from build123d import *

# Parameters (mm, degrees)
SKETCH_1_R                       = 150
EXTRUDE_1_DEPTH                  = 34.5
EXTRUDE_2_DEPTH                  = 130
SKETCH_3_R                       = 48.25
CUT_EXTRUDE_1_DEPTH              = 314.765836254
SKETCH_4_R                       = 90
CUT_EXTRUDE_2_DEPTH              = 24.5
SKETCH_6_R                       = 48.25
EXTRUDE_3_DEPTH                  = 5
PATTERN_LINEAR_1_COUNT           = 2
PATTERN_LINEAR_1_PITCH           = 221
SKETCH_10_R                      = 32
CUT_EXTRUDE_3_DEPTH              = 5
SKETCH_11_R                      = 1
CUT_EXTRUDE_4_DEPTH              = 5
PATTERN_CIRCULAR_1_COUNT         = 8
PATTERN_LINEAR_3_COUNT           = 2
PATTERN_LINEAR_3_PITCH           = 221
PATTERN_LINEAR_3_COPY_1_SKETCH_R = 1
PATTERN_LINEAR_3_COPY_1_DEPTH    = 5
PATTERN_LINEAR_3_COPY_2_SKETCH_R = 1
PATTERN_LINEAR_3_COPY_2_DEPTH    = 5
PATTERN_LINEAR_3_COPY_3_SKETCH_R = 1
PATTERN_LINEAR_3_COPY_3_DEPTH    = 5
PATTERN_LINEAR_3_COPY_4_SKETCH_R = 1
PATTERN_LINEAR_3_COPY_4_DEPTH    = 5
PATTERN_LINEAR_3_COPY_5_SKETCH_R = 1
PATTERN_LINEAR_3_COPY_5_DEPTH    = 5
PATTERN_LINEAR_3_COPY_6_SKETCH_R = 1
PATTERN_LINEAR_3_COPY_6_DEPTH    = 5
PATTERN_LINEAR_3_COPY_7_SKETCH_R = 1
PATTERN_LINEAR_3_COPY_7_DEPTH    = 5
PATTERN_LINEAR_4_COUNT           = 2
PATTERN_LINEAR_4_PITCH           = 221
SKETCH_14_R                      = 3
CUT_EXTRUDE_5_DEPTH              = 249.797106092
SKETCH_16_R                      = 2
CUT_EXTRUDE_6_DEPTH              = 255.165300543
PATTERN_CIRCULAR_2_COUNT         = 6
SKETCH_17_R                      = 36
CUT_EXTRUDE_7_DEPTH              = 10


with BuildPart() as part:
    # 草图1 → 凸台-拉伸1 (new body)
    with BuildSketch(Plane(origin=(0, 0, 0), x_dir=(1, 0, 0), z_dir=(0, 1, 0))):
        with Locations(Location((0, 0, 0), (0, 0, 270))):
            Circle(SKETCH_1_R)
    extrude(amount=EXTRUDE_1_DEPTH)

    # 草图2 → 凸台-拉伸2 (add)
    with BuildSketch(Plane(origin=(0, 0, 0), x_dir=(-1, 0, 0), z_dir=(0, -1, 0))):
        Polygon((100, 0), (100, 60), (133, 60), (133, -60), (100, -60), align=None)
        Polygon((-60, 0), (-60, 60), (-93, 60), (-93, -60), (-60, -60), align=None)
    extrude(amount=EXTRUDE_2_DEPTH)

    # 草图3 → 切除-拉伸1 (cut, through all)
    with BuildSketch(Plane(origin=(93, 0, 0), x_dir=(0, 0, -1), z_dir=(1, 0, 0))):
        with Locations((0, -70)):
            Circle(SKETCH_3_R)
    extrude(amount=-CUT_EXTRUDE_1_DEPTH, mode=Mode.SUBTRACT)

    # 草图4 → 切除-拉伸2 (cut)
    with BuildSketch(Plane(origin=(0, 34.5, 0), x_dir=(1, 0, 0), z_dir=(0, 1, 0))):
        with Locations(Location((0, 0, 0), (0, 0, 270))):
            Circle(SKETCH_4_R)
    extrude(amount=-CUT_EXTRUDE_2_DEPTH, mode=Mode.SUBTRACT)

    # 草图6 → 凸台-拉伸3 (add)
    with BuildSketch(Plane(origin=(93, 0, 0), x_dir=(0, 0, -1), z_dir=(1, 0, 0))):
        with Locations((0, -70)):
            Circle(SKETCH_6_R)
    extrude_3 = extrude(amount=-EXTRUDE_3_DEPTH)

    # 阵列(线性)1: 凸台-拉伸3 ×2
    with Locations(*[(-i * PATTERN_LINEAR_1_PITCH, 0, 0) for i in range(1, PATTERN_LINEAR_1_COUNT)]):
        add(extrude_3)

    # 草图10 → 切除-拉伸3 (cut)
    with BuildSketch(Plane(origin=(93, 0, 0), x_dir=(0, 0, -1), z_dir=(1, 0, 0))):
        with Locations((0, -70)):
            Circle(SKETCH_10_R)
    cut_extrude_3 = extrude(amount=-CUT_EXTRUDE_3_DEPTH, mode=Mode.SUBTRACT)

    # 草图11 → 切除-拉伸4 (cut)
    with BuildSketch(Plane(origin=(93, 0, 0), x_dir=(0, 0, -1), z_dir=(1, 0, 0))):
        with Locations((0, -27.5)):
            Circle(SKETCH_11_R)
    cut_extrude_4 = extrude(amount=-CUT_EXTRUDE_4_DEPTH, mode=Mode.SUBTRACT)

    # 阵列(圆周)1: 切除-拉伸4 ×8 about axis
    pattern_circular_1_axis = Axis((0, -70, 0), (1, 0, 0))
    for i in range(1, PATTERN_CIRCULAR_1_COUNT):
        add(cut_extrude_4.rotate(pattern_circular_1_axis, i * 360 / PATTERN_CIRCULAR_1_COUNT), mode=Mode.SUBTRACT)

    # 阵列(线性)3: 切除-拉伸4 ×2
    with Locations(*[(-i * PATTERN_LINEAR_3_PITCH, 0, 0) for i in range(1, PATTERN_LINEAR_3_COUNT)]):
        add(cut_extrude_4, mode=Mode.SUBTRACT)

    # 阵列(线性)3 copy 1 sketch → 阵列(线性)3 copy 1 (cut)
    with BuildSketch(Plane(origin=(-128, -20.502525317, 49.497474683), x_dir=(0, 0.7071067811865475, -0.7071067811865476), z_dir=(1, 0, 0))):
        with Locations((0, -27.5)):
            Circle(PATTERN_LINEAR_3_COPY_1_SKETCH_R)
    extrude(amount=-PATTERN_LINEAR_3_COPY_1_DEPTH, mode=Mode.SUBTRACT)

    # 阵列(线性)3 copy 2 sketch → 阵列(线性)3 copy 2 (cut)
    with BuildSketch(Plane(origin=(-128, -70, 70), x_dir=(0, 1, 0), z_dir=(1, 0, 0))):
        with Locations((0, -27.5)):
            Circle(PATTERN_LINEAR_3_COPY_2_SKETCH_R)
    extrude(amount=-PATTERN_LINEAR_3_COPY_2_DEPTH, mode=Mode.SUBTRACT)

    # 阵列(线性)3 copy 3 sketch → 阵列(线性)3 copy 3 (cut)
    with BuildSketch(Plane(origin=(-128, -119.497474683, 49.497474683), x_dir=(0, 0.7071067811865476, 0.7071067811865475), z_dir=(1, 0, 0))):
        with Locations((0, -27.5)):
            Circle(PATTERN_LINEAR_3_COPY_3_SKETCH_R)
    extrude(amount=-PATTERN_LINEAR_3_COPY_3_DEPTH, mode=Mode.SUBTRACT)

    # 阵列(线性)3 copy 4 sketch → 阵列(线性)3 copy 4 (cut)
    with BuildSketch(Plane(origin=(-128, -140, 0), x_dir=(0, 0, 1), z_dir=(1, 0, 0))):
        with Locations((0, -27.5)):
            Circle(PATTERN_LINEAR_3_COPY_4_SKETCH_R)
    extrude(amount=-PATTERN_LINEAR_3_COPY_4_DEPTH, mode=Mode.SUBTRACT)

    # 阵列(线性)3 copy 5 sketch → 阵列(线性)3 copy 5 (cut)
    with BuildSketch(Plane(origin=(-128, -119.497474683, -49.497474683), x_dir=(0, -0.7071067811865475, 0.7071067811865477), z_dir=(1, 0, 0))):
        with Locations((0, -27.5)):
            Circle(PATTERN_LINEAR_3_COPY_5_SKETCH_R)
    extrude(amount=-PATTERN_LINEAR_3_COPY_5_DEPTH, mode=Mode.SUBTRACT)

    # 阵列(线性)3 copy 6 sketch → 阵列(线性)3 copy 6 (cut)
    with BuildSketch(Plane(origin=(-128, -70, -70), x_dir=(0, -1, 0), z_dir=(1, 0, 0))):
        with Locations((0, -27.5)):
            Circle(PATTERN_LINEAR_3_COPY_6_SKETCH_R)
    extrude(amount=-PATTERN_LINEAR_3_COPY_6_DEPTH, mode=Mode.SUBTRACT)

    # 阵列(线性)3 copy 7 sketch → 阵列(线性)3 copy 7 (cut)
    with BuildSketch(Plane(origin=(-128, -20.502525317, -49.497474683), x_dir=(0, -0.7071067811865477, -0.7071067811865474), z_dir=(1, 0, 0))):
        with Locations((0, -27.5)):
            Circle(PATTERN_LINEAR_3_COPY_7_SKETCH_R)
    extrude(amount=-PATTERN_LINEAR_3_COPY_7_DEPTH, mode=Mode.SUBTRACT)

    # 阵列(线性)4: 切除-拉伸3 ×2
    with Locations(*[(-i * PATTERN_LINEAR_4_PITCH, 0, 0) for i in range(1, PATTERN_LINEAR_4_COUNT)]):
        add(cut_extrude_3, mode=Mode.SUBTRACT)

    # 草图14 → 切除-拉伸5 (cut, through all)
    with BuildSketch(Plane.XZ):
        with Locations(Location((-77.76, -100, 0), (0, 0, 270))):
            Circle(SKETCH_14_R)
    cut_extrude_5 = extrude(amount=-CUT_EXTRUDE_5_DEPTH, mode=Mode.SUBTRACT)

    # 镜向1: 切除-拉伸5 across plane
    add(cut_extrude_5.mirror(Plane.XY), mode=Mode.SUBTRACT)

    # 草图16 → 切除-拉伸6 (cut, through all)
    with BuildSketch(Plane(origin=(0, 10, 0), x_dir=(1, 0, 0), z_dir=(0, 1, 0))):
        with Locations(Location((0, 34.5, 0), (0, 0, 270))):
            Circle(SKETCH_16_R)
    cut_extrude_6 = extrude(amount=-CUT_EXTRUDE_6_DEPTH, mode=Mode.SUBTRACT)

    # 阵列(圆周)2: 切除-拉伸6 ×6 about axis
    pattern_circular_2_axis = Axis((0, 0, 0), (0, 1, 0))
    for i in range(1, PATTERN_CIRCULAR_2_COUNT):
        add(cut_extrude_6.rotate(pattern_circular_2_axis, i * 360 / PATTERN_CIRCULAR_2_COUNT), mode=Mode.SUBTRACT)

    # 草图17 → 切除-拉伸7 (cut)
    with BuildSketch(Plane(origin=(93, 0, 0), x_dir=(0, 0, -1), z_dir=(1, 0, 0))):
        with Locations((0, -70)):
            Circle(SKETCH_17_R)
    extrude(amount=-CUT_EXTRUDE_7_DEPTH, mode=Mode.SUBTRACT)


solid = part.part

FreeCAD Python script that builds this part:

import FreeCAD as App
import Part
import Sketcher
Q = App.Units.Quantity


def add_polygon(sketch, points):
    """Adds a closed chain of lines whose ends are joined by coincident constraints."""
    first, n = sketch.GeometryCount, len(points)
    for a, b in zip(points, points[1:] + points[:1]):
        sketch.addGeometry(Part.LineSegment(App.Vector(*a, 0), App.Vector(*b, 0)), False)
    for i in range(n):
        sketch.addConstraint(Sketcher.Constraint("Coincident", first + i, 2, first + (i + 1) % n, 1))

doc = App.newDocument("Part")
params = doc.addObject("Spreadsheet::Sheet", "Params")
for row, (alias, value) in enumerate([
    ("sketch1_diameter", "300 mm"),
    ("pad1_length", "34.5 mm"),
    ("sketch2_width", "33 mm"),
    ("sketch2_height", "120 mm"),
    ("pad2_length", "130 mm"),
    ("sketch3_diameter", "96.5 mm"),
    ("sketch4_diameter", "180 mm"),
    ("pocket2_length", "24.5 mm"),
    ("sketch5_diameter", "96.5 mm"),
    ("pad3_length", "5 mm"),
    ("linearpattern_pitch", "221 mm"),
    ("sketch6_diameter", "64 mm"),
    ("pocket3_length", "5 mm"),
    ("sketch7_diameter", "2 mm"),
    ("pocket4_length", "5 mm"),
    ("linearpattern2_pitch", "221 mm"),
    ("sketch8_diameter", "2 mm"),
    ("pocket5_length", "5 mm"),
    ("sketch9_diameter", "2 mm"),
    ("pocket6_length", "5 mm"),
    ("sketch10_diameter", "2 mm"),
    ("pocket7_length", "5 mm"),
    ("sketch11_diameter", "2 mm"),
    ("pocket8_length", "5 mm"),
    ("sketch12_diameter", "2 mm"),
    ("pocket9_length", "5 mm"),
    ("sketch13_diameter", "2 mm"),
    ("pocket10_length", "5 mm"),
    ("sketch14_diameter", "2 mm"),
    ("pocket11_length", "5 mm"),
    ("linearpattern3_pitch", "221 mm"),
    ("sketch15_diameter", "6 mm"),
    ("sketch16_diameter", "4 mm"),
    ("sketch17_diameter", "72 mm"),
    ("pocket14_length", "10 mm"),
], start=1):
    params.set(f"A{row}", alias)
    params.set(f"B{row}", "=" + value)
    params.setAlias(f"B{row}", alias)

body = doc.addObject("PartDesign::Body", "Body")

# Sketch on XZ plane
sketch1 = body.newObject("Sketcher::SketchObject", "Sketch")
sketch1.AttachmentSupport = (doc.getObject("XZ_Plane"), [""])
sketch1.MapMode = "FlatFace"
sketch1.addGeometry(Part.Circle(App.Vector(0, 0, 0), App.Vector(0, 0, 1), 150), False)
sketch1.addConstraint([
    Sketcher.Constraint("Coincident", 0, 3, -1, 1),
    Sketcher.Constraint("Diameter", 0, Q("300 mm")),
])
sketch1.setExpression("Constraints[1]", "Params.sketch1_diameter")
pad1 = body.newObject("PartDesign::Pad", "Pad")
pad1.Profile = sketch1
pad1.setExpression("Length", "Params.pad1_length")
pad1.Reversed = True

# Sketch on XZ plane
sketch2 = body.newObject("Sketcher::SketchObject", "Sketch001")
sketch2.AttachmentSupport = (doc.getObject("XZ_Plane"), [""])
sketch2.MapMode = "FlatFace"
add_polygon(sketch2, [(-100, -60), (-100, 60), (-133, 60), (-133, -60)])  # lines 0-3
add_polygon(sketch2, [(60, -60), (93, -60), (93, 60), (60, 60)])  # lines 4-7
sketch2.addConstraint([
    Sketcher.Constraint("Vertical", 0),
    Sketcher.Constraint("Horizontal", 1),
    Sketcher.Constraint("Vertical", 2),
    Sketcher.Constraint("Horizontal", 3),
    Sketcher.Constraint("Horizontal", 4),
    Sketcher.Constraint("Vertical", 5),
    Sketcher.Constraint("Horizontal", 6),
    Sketcher.Constraint("Vertical", 7),
    Sketcher.Constraint("Horizontal", 3, 2, 4, 2),
    Sketcher.Constraint("Horizontal", 1, 2, 5, 2),
    Sketcher.Constraint("Equal", 3, 4),
    Sketcher.Constraint("DistanceX", 1, 2, 1, 1, Q("33 mm")),
    Sketcher.Constraint("DistanceY", 0, 1, 0, 2, Q("120 mm")),
    Sketcher.Constraint("DistanceX", 0, 2, -1, 1, Q("100 mm")),
    Sketcher.Constraint("DistanceY", -1, 1, 0, 2, Q("60 mm")),
    Sketcher.Constraint("DistanceX", -1, 1, 4, 2, Q("93 mm")),
])
sketch2.setExpression("Constraints[19]", "Params.sketch2_width")
sketch2.setExpression("Constraints[20]", "Params.sketch2_height")
pad2 = body.newObject("PartDesign::Pad", "Pad001")
pad2.Profile = sketch2
pad2.setExpression("Length", "Params.pad2_length")

# Sketch on YZ plane
sketch3 = body.newObject("Sketcher::SketchObject", "Sketch002")
sketch3.AttachmentSupport = (doc.getObject("YZ_Plane"), [""])
sketch3.MapMode = "FlatFace"
sketch3.AttachmentOffset = App.Placement(App.Vector(0, 0, 93), App.Rotation())
sketch3.addGeometry(Part.Circle(App.Vector(-70, 0, 0), App.Vector(0, 0, 1), 48.25), False)
sketch3.addConstraint([
    Sketcher.Constraint("PointOnObject", 0, 3, -1),
    Sketcher.Constraint("Diameter", 0, Q("96.5 mm")),
    Sketcher.Constraint("DistanceX", 0, 3, -1, 1, Q("70 mm")),
])
sketch3.setExpression("Constraints[1]", "Params.sketch3_diameter")
pocket1 = body.newObject("PartDesign::Pocket", "Pocket")
pocket1.Profile = sketch3
pocket1.Type = "ThroughAll"

# Sketch on XZ plane
sketch4 = body.newObject("Sketcher::SketchObject", "Sketch003")
sketch4.AttachmentSupport = (doc.getObject("XZ_Plane"), [""])
sketch4.MapMode = "FlatFace"
sketch4.AttachmentOffset = App.Placement(App.Vector(0, 0, -34.5), App.Rotation())
sketch4.addGeometry(Part.Circle(App.Vector(0, 0, 0), App.Vector(0, 0, 1), 90), False)
sketch4.addConstraint([
    Sketcher.Constraint("Coincident", 0, 3, -1, 1),
    Sketcher.Constraint("Diameter", 0, Q("180 mm")),
])
sketch4.setExpression("Constraints[1]", "Params.sketch4_diameter")
pocket2 = body.newObject("PartDesign::Pocket", "Pocket001")
pocket2.Profile = sketch4
pocket2.setExpression("Length", "Params.pocket2_length")
pocket2.Reversed = True

# Sketch on YZ plane
sketch5 = body.newObject("Sketcher::SketchObject", "Sketch004")
sketch5.AttachmentSupport = (doc.getObject("YZ_Plane"), [""])
sketch5.MapMode = "FlatFace"
sketch5.AttachmentOffset = App.Placement(App.Vector(0, 0, 93), App.Rotation())
sketch5.addGeometry(Part.Circle(App.Vector(-70, 0, 0), App.Vector(0, 0, 1), 48.25), False)
sketch5.addConstraint([
    Sketcher.Constraint("PointOnObject", 0, 3, -1),
    Sketcher.Constraint("Diameter", 0, Q("96.5 mm")),
    Sketcher.Constraint("DistanceX", 0, 3, -1, 1, Q("70 mm")),
])
sketch5.setExpression("Constraints[1]", "Params.sketch5_diameter")
pad3 = body.newObject("PartDesign::Pad", "Pad002")
pad3.Profile = sketch5
pad3.setExpression("Length", "Params.pad3_length")
pad3.Reversed = True
doc.recompute()

linearpattern = body.newObject("PartDesign::LinearPattern", "LinearPattern")
linearpattern.Originals = [pad3]
linearpattern.Direction = (doc.getObject("X_Axis"), [""])
linearpattern.Mode = "offset"
linearpattern.setExpression("Offset", "Params.linearpattern_pitch")
linearpattern.Occurrences = 2
linearpattern.Reversed = True
body.Tip = linearpattern

# Sketch on YZ plane
sketch6 = body.newObject("Sketcher::SketchObject", "Sketch005")
sketch6.AttachmentSupport = (doc.getObject("YZ_Plane"), [""])
sketch6.MapMode = "FlatFace"
sketch6.AttachmentOffset = App.Placement(App.Vector(0, 0, 93), App.Rotation())
sketch6.addGeometry(Part.Circle(App.Vector(-70, 0, 0), App.Vector(0, 0, 1), 32), False)
sketch6.addConstraint([
    Sketcher.Constraint("PointOnObject", 0, 3, -1),
    Sketcher.Constraint("Diameter", 0, Q("64 mm")),
    Sketcher.Constraint("DistanceX", 0, 3, -1, 1, Q("70 mm")),
])
sketch6.setExpression("Constraints[1]", "Params.sketch6_diameter")
pocket3 = body.newObject("PartDesign::Pocket", "Pocket002")
pocket3.Profile = sketch6
pocket3.setExpression("Length", "Params.pocket3_length")

# Sketch on YZ plane
sketch7 = body.newObject("Sketcher::SketchObject", "Sketch006")
sketch7.AttachmentSupport = (doc.getObject("YZ_Plane"), [""])
sketch7.MapMode = "FlatFace"
sketch7.AttachmentOffset = App.Placement(App.Vector(0, 0, 93), App.Rotation())
sketch7.addGeometry(Part.Circle(App.Vector(-27.5, 0, 0), App.Vector(0, 0, 1), 1), False)
sketch7.addConstraint([
    Sketcher.Constraint("PointOnObject", 0, 3, -1),
    Sketcher.Constraint("Diameter", 0, Q("2 mm")),
    Sketcher.Constraint("DistanceX", 0, 3, -1, 1, Q("27.5 mm")),
])
sketch7.setExpression("Constraints[1]", "Params.sketch7_diameter")
pocket4 = body.newObject("PartDesign::Pocket", "Pocket003")
pocket4.Profile = sketch7
pocket4.setExpression("Length", "Params.pocket4_length")
doc.recompute()

datumline = body.newObject("PartDesign::Line", "DatumLine")
datumline.Placement = App.Placement(App.Vector(0, -70, 0), App.Rotation(App.Vector(0, 0, 1), App.Vector(1, 0, 0)))
polarpattern = body.newObject("PartDesign::PolarPattern", "PolarPattern")
polarpattern.Originals = [pocket4]
polarpattern.Axis = (datumline, [""])
polarpattern.Angle = 360
polarpattern.Occurrences = 8
body.Tip = polarpattern
doc.recompute()

linearpattern2 = body.newObject("PartDesign::LinearPattern", "LinearPattern001")
linearpattern2.Originals = [pocket4]
linearpattern2.Direction = (doc.getObject("X_Axis"), [""])
linearpattern2.Mode = "offset"
linearpattern2.setExpression("Offset", "Params.linearpattern2_pitch")
linearpattern2.Occurrences = 2
linearpattern2.Reversed = True
body.Tip = linearpattern2

# Sketch on YZ plane
sketch8 = body.newObject("Sketcher::SketchObject", "Sketch007")
sketch8.AttachmentSupport = (doc.getObject("YZ_Plane"), [""])
sketch8.MapMode = "FlatFace"
sketch8.AttachmentOffset = App.Placement(App.Vector(0, 0, -128), App.Rotation())
sketch8.addGeometry(Part.Circle(App.Vector(-39.947962, 30.052038, 0), App.Vector(0, 0, 1), 1), False)
sketch8.addConstraint([
    Sketcher.Constraint("Diameter", 0, Q("2 mm")),
    Sketcher.Constraint("DistanceX", 0, 3, -1, 1, Q("39.947962 mm")),
    Sketcher.Constraint("DistanceY", -1, 1, 0, 3, Q("30.052038 mm")),
])
sketch8.setExpression("Constraints[0]", "Params.sketch8_diameter")
pocket5 = body.newObject("PartDesign::Pocket", "Pocket004")
pocket5.Profile = sketch8
pocket5.setExpression("Length", "Params.pocket5_length")

# Sketch on YZ plane
sketch9 = body.newObject("Sketcher::SketchObject", "Sketch008")
sketch9.AttachmentSupport = (doc.getObject("YZ_Plane"), [""])
sketch9.MapMode = "FlatFace"
sketch9.AttachmentOffset = App.Placement(App.Vector(0, 0, -128), App.Rotation())
sketch9.addGeometry(Part.Circle(App.Vector(-70, 42.5, 0), App.Vector(0, 0, 1), 1), False)
sketch9.addConstraint([
    Sketcher.Constraint("Diameter", 0, Q("2 mm")),
    Sketcher.Constraint("DistanceX", 0, 3, -1, 1, Q("70 mm")),
    Sketcher.Constraint("DistanceY", -1, 1, 0, 3, Q("42.5 mm")),
])
sketch9.setExpression("Constraints[0]", "Params.sketch9_diameter")
pocket6 = body.newObject("PartDesign::Pocket", "Pocket005")
pocket6.Profile = sketch9
pocket6.setExpression("Length", "Params.pocket6_length")

# Sketch on YZ plane
sketch10 = body.newObject("Sketcher::SketchObject", "Sketch009")
sketch10.AttachmentSupport = (doc.getObject("YZ_Plane"), [""])
sketch10.MapMode = "FlatFace"
sketch10.AttachmentOffset = App.Placement(App.Vector(0, 0, -128), App.Rotation())
sketch10.addGeometry(Part.Circle(App.Vector(-100.052038, 30.052038, 0), App.Vector(0, 0, 1), 1), False)
sketch10.addConstraint([
    Sketcher.Constraint("Diameter", 0, Q("2 mm")),
    Sketcher.Constraint("DistanceX", 0, 3, -1, 1, Q("100.052038 mm")),
    Sketcher.Constraint("DistanceY", -1, 1, 0, 3, Q("30.052038 mm")),
])
sketch10.setExpression("Constraints[0]", "Params.sketch10_diameter")
pocket7 = body.newObject("PartDesign::Pocket", "Pocket006")
pocket7.Profile = sketch10
pocket7.setExpression("Length", "Params.pocket7_length")

# Sketch on YZ plane
sketch11 = body.newObject("Sketcher::SketchObject", "Sketch010")
sketch11.AttachmentSupport = (doc.getObject("YZ_Plane"), [""])
sketch11.MapMode = "FlatFace"
sketch11.AttachmentOffset = App.Placement(App.Vector(0, 0, -128), App.Rotation())
sketch11.addGeometry(Part.Circle(App.Vector(-112.5, 0, 0), App.Vector(0, 0, 1), 1), False)
sketch11.addConstraint([
    Sketcher.Constraint("PointOnObject", 0, 3, -1),
    Sketcher.Constraint("Diameter", 0, Q("2 mm")),
    Sketcher.Constraint("DistanceX", 0, 3, -1, 1, Q("112.5 mm")),
])
sketch11.setExpression("Constraints[1]", "Params.sketch11_diameter")
pocket8 = body.newObject("PartDesign::Pocket", "Pocket007")
pocket8.Profile = sketch11
pocket8.setExpression("Length", "Params.pocket8_length")

# Sketch on YZ plane
sketch12 = body.newObject("Sketcher::SketchObject", "Sketch011")
sketch12.AttachmentSupport = (doc.getObject("YZ_Plane"), [""])
sketch12.MapMode = "FlatFace"
sketch12.AttachmentOffset = App.Placement(App.Vector(0, 0, -128), App.Rotation())
sketch12.addGeometry(Part.Circle(App.Vector(-100.052038, -30.052038, 0), App.Vector(0, 0, 1), 1), False)
sketch12.addConstraint([
    Sketcher.Constraint("Diameter", 0, Q("2 mm")),
    Sketcher.Constraint("DistanceX", 0, 3, -1, 1, Q("100.052038 mm")),
    Sketcher.Constraint("DistanceY", 0, 3, -1, 1, Q("30.052038 mm")),
])
sketch12.setExpression("Constraints[0]", "Params.sketch12_diameter")
pocket9 = body.newObject("PartDesign::Pocket", "Pocket008")
pocket9.Profile = sketch12
pocket9.setExpression("Length", "Params.pocket9_length")

# Sketch on YZ plane
sketch13 = body.newObject("Sketcher::SketchObject", "Sketch012")
sketch13.AttachmentSupport = (doc.getObject("YZ_Plane"), [""])
sketch13.MapMode = "FlatFace"
sketch13.AttachmentOffset = App.Placement(App.Vector(0, 0, -128), App.Rotation())
sketch13.addGeometry(Part.Circle(App.Vector(-70, -42.5, 0), App.Vector(0, 0, 1), 1), False)
sketch13.addConstraint([
    Sketcher.Constraint("Diameter", 0, Q("2 mm")),
    Sketcher.Constraint("DistanceX", 0, 3, -1, 1, Q("70 mm")),
    Sketcher.Constraint("DistanceY", 0, 3, -1, 1, Q("42.5 mm")),
])
sketch13.setExpression("Constraints[0]", "Params.sketch13_diameter")
pocket10 = body.newObject("PartDesign::Pocket", "Pocket009")
pocket10.Profile = sketch13
pocket10.setExpression("Length", "Params.pocket10_length")

# Sketch on YZ plane
sketch14 = body.newObject("Sketcher::SketchObject", "Sketch013")
sketch14.AttachmentSupport = (doc.getObject("YZ_Plane"), [""])
sketch14.MapMode = "FlatFace"
sketch14.AttachmentOffset = App.Placement(App.Vector(0, 0, -128), App.Rotation())
sketch14.addGeometry(Part.Circle(App.Vector(-39.947962, -30.052038, 0), App.Vector(0, 0, 1), 1), False)
sketch14.addConstraint([
    Sketcher.Constraint("Diameter", 0, Q("2 mm")),
    Sketcher.Constraint("DistanceX", 0, 3, -1, 1, Q("39.947962 mm")),
    Sketcher.Constraint("DistanceY", 0, 3, -1, 1, Q("30.052038 mm")),
])
sketch14.setExpression("Constraints[0]", "Params.sketch14_diameter")
pocket11 = body.newObject("PartDesign::Pocket", "Pocket010")
pocket11.Profile = sketch14
pocket11.setExpression("Length", "Params.pocket11_length")
doc.recompute()

linearpattern3 = body.newObject("PartDesign::LinearPattern", "LinearPattern002")
linearpattern3.Originals = [pocket3]
linearpattern3.Direction = (doc.getObject("X_Axis"), [""])
linearpattern3.Mode = "offset"
linearpattern3.setExpression("Offset", "Params.linearpattern3_pitch")
linearpattern3.Occurrences = 2
linearpattern3.Reversed = True
body.Tip = linearpattern3

# Sketch on XZ plane
sketch15 = body.newObject("Sketcher::SketchObject", "Sketch014")
sketch15.AttachmentSupport = (doc.getObject("XZ_Plane"), [""])
sketch15.MapMode = "FlatFace"
sketch15.addGeometry(Part.Circle(App.Vector(-77.76, -100, 0), App.Vector(0, 0, 1), 3), False)
sketch15.addConstraint([
    Sketcher.Constraint("Diameter", 0, Q("6 mm")),
    Sketcher.Constraint("DistanceY", 0, 3, -1, 1, Q("100 mm")),
    Sketcher.Constraint("DistanceX", 0, 3, -1, 1, Q("77.76 mm")),
])
sketch15.setExpression("Constraints[0]", "Params.sketch15_diameter")
pocket12 = body.newObject("PartDesign::Pocket", "Pocket011")
pocket12.Profile = sketch15
pocket12.Type = "ThroughAll"
doc.recompute()

mirrored = body.newObject("PartDesign::Mirrored", "Mirrored")
mirrored.Originals = [pocket12]
mirrored.MirrorPlane = (doc.getObject("XY_Plane"), [""])
body.Tip = mirrored

# Sketch on XZ plane
sketch16 = body.newObject("Sketcher::SketchObject", "Sketch015")
sketch16.AttachmentSupport = (doc.getObject("XZ_Plane"), [""])
sketch16.MapMode = "FlatFace"
sketch16.AttachmentOffset = App.Placement(App.Vector(0, 0, -10), App.Rotation())
sketch16.addGeometry(Part.Circle(App.Vector(0, -34.5, 0), App.Vector(0, 0, 1), 2), False)
sketch16.addConstraint([
    Sketcher.Constraint("PointOnObject", 0, 3, -2),
    Sketcher.Constraint("Diameter", 0, Q("4 mm")),
    Sketcher.Constraint("DistanceY", 0, 3, -1, 1, Q("34.5 mm")),
])
sketch16.setExpression("Constraints[1]", "Params.sketch16_diameter")
pocket13 = body.newObject("PartDesign::Pocket", "Pocket012")
pocket13.Profile = sketch16
pocket13.Type = "ThroughAll"
pocket13.Reversed = True
doc.recompute()

polarpattern2 = body.newObject("PartDesign::PolarPattern", "PolarPattern001")
polarpattern2.Originals = [pocket13]
polarpattern2.Axis = (doc.getObject("Y_Axis"), [""])
polarpattern2.Angle = 360
polarpattern2.Occurrences = 6
body.Tip = polarpattern2

# Sketch on YZ plane
sketch17 = body.newObject("Sketcher::SketchObject", "Sketch016")
sketch17.AttachmentSupport = (doc.getObject("YZ_Plane"), [""])
sketch17.MapMode = "FlatFace"
sketch17.AttachmentOffset = App.Placement(App.Vector(0, 0, 93), App.Rotation())
sketch17.addGeometry(Part.Circle(App.Vector(-70, 0, 0), App.Vector(0, 0, 1), 36), False)
sketch17.addConstraint([
    Sketcher.Constraint("PointOnObject", 0, 3, -1),
    Sketcher.Constraint("Diameter", 0, Q("72 mm")),
    Sketcher.Constraint("DistanceX", 0, 3, -1, 1, Q("70 mm")),
])
sketch17.setExpression("Constraints[1]", "Params.sketch17_diameter")
pocket14 = body.newObject("PartDesign::Pocket", "Pocket013")
pocket14.Profile = sketch17
pocket14.setExpression("Length", "Params.pocket14_length")

doc.recompute()
